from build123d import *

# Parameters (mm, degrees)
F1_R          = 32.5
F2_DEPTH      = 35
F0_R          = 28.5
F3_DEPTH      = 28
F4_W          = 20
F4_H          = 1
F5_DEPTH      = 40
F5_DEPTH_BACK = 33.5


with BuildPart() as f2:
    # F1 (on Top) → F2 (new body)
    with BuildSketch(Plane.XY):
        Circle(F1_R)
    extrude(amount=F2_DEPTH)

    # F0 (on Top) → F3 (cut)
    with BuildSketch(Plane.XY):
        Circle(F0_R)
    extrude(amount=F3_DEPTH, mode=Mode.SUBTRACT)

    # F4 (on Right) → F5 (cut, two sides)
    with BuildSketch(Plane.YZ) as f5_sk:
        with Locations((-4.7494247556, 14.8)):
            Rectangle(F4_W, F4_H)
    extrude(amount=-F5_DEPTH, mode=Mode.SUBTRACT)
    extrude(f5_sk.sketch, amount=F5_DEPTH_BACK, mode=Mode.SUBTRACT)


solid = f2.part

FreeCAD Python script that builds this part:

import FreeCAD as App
import Part
import Sketcher

V = App.Vector

doc = App.newDocument("Part")
body = doc.addObject("PartDesign::Body", "Body")

sketch1 = doc.addObject("Sketcher::SketchObject", "Sketch")
body.addObject(sketch1)
sketch1.AttachmentSupport = (doc.XY_Plane, [""])
sketch1.MapMode = "FlatFace"
sketch1.addGeometry(Part.Circle(V(0, 0, 0), V(0, 0, 1), 32), False)
sketch1.addConstraint([
    Sketcher.Constraint("Coincident", 0, 3, -1, 1),
    Sketcher.Constraint("Diameter", 0, 65.0),
])
pad1 = doc.addObject("PartDesign::Pad", "Pad")
body.addObject(pad1)
pad1.Profile = sketch1
pad1.Length = 35

sketch2 = doc.addObject("Sketcher::SketchObject", "Sketch001")
body.addObject(sketch2)
sketch2.AttachmentSupport = (doc.XY_Plane, [""])
sketch2.MapMode = "FlatFace"
sketch2.addGeometry(Part.Circle(V(0, 0, 0), V(0, 0, 1), 28), False)
sketch2.addConstraint([
    Sketcher.Constraint("Coincident", 0, 3, -1, 1),
    Sketcher.Constraint("Diameter", 0, 57.0),
])
pocket1 = doc.addObject("PartDesign::Pocket", "Pocket")
body.addObject(pocket1)
pocket1.Profile = sketch2
pocket1.Length = 28
pocket1.Reversed = True

sketch3 = doc.addObject("Sketcher::SketchObject", "Sketch002")
body.addObject(sketch3)
sketch3.AttachmentSupport = (doc.YZ_Plane, [""])
sketch3.MapMode = "FlatFace"
sketch3.addGeometry([
    Part.LineSegment(V(-14.7, 15.3, 0), V(-14.7, 14.3, 0)),
    Part.LineSegment(V(-14.7, 14.3, 0), V(5.3, 14.3, 0)),
    Part.LineSegment(V(5.3, 14.3, 0), V(5.3, 15.3, 0)),
    Part.LineSegment(V(5.3, 15.3, 0), V(-14.7, 15.3, 0)),
], False)
sketch3.addConstraint([
    Sketcher.Constraint("Coincident", 0, 2, 1, 1),
    Sketcher.Constraint("Coincident", 1, 2, 2, 1),
    Sketcher.Constraint("Coincident", 2, 2, 3, 1),
    Sketcher.Constraint("Coincident", 3, 2, 0, 1),
    Sketcher.Constraint("Vertical", 0),
    Sketcher.Constraint("Horizontal", 1),
    Sketcher.Constraint("Vertical", 2),
    Sketcher.Constraint("Horizontal", 3),
    Sketcher.Constraint("DistanceX", 1, 1, 1, 2, 20.0),
    Sketcher.Constraint("DistanceY", 0, 2, 0, 1, 1.0),
    Sketcher.Constraint("DistanceY", -1, 1, 0, 2, 14.3),
    Sketcher.Constraint("DistanceX", 0, 2, -1, 1, 14.749425),
])
pocket2 = doc.addObject("PartDesign::Pocket", "Pocket001")
body.addObject(pocket2)
pocket2.Profile = sketch3
pocket2.Type = "ThroughAll"
pocket2.Midplane = True

doc.recompute()
